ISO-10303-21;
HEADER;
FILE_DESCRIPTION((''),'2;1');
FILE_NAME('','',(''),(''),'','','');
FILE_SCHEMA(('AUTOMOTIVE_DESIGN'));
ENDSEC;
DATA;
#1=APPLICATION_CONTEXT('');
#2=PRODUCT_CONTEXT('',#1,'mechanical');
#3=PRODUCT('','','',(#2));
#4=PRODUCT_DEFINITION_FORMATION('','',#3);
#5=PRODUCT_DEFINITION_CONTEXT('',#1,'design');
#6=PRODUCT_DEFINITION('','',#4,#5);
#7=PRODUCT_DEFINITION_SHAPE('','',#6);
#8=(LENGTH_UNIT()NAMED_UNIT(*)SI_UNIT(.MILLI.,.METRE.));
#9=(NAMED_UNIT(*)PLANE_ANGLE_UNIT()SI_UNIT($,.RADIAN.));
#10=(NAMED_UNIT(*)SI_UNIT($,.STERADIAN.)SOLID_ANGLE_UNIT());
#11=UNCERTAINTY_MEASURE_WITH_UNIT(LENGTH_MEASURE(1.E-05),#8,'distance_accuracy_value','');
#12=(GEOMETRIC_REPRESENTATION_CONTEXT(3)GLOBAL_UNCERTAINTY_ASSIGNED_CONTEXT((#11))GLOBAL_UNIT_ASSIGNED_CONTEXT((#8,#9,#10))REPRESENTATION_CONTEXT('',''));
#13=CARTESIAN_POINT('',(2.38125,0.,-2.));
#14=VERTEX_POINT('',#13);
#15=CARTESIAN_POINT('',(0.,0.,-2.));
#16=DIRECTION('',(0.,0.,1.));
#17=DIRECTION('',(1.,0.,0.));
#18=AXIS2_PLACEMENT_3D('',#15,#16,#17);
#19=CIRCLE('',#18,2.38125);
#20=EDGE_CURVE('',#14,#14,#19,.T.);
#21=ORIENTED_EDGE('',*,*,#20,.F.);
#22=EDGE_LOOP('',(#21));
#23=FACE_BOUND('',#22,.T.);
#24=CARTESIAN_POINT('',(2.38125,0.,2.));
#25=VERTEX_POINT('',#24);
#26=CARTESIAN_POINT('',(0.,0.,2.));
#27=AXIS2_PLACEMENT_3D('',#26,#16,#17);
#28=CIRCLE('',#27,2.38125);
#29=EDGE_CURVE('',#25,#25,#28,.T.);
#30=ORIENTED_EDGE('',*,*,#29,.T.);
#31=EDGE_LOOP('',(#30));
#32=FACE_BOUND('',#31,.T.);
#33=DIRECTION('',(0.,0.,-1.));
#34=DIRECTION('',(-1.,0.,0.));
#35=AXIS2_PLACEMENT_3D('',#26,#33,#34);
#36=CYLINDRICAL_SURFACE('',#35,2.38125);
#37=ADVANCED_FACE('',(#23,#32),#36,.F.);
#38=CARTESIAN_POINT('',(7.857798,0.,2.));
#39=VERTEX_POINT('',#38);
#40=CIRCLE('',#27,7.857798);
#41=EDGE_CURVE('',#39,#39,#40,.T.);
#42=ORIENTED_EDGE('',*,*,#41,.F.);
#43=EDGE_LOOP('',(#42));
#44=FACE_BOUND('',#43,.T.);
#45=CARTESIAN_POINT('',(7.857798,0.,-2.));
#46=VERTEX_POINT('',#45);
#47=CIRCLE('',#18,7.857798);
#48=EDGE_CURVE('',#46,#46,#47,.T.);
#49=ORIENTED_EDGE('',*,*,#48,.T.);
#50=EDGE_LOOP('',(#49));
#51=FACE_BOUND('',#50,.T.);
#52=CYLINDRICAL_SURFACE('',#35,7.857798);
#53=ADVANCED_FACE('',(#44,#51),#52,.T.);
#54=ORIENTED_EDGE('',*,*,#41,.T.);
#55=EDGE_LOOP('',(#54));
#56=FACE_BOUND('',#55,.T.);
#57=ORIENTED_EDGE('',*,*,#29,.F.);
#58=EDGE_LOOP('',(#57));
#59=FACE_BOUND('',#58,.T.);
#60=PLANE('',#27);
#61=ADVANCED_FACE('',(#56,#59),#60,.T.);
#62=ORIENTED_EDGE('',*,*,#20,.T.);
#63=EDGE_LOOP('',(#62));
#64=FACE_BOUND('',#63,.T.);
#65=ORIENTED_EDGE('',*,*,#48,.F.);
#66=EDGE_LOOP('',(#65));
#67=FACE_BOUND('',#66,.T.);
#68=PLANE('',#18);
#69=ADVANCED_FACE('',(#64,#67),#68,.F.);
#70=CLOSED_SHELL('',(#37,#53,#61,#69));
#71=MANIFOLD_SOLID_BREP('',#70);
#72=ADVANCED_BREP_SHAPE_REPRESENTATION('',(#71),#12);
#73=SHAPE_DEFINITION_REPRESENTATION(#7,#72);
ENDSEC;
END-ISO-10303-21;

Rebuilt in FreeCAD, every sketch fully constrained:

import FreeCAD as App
import Part
import Sketcher

V = App.Vector
Q = App.Units.Quantity

doc = App.newDocument("Part")
params = doc.addObject("Spreadsheet::Sheet", "Params")
for row, (alias, value) in enumerate([
    ("pad1_length", "4 mm"),
], start=1):
    params.set(f"A{row}", alias)
    params.set(f"B{row}", "=" + value)
    params.setAlias(f"B{row}", alias)

body = doc.addObject("PartDesign::Body", "Body")

# Sketch on XY plane
sketch1 = body.newObject("Sketcher::SketchObject", "Sketch")
sketch1.AttachmentSupport = (doc.getObject("XY_Plane"), [""])
sketch1.MapMode = "FlatFace"
sketch1.addGeometry([
    Part.Circle(V(0, 0, 0), V(0, 0, 1), 7.9),
    Part.Circle(V(0, 0, 0), V(0, 0, 1), 2.4),
], False)
sketch1.addConstraint([
    Sketcher.Constraint("Coincident", 0, 3, -1, 1),
    Sketcher.Constraint("Coincident", 1, 3, -1, 1),
    Sketcher.Constraint("Diameter", 1, Q("4.7625 mm")),
    Sketcher.Constraint("Diameter", 0, Q("15.715596 mm")),
])
pad1 = body.newObject("PartDesign::Pad", "Pad")
pad1.Profile = sketch1
pad1.setExpression("Length", "Params.pad1_length")
pad1.Midplane = True

doc.recompute()
